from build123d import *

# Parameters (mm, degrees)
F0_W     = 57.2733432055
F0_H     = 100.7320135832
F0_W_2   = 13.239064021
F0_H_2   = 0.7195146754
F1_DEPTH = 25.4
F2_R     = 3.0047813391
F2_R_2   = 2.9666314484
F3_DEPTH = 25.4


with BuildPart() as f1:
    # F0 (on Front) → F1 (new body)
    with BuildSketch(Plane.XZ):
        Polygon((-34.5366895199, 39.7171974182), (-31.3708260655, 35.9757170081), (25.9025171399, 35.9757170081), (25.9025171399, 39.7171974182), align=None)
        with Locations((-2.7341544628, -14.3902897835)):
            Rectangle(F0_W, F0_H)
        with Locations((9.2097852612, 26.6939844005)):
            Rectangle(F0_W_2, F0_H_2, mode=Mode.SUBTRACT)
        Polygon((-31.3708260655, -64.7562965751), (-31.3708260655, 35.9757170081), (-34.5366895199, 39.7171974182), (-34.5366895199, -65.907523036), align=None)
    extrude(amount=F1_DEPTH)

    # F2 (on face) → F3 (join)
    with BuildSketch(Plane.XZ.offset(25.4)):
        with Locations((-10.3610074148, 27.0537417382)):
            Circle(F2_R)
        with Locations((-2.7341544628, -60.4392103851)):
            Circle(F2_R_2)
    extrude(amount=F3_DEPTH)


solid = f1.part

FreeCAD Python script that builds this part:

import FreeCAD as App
import Part
import Sketcher
from FreeCAD import Vector
Q = App.Units.Quantity

doc = App.newDocument("Part")
body = doc.addObject("PartDesign::Body", "Body")

# Sketch on XZ plane
sketch1 = body.newObject("Sketcher::SketchObject", "Sketch")
sketch1.AttachmentSupport = (doc.getObject("XZ_Plane"), [""])
sketch1.MapMode = "FlatFace"
sketch1.addGeometry(Part.LineSegment(Vector(25.9, 39.7, 0), Vector(-34.5, 39.7, 0)), False)
sketch1.addGeometry(Part.LineSegment(Vector(-34.5, 39.7, 0), Vector(-34.5, -65.9, 0)), False)
sketch1.addGeometry(Part.LineSegment(Vector(-34.5, -65.9, 0), Vector(-31.4, -64.8, 0)), False)
sketch1.addGeometry(Part.LineSegment(Vector(-31.4, -64.8, 0), Vector(25.9, -64.8, 0)), False)
sketch1.addGeometry(Part.LineSegment(Vector(25.9, -64.8, 0), Vector(25.9, 39.7, 0)), False)
sketch1.addGeometry(Part.LineSegment(Vector(15.8, 26.3, 0), Vector(2.6, 26.3, 0)), False)
sketch1.addGeometry(Part.LineSegment(Vector(2.6, 26.3, 0), Vector(2.6, 27.1, 0)), False)
sketch1.addGeometry(Part.LineSegment(Vector(2.6, 27.1, 0), Vector(15.8, 27.1, 0)), False)
sketch1.addGeometry(Part.LineSegment(Vector(15.8, 27.1, 0), Vector(15.8, 26.3, 0)), False)
sketch1.addConstraint(Sketcher.Constraint("Coincident", 0, 2, 1, 1))
sketch1.addConstraint(Sketcher.Constraint("Coincident", 1, 2, 2, 1))
sketch1.addConstraint(Sketcher.Constraint("Coincident", 2, 2, 3, 1))
sketch1.addConstraint(Sketcher.Constraint("Coincident", 3, 2, 4, 1))
sketch1.addConstraint(Sketcher.Constraint("Coincident", 4, 2, 0, 1))
sketch1.addConstraint(Sketcher.Constraint("Coincident", 5, 2, 6, 1))
sketch1.addConstraint(Sketcher.Constraint("Coincident", 6, 2, 7, 1))
sketch1.addConstraint(Sketcher.Constraint("Coincident", 7, 2, 8, 1))
sketch1.addConstraint(Sketcher.Constraint("Coincident", 8, 2, 5, 1))
sketch1.addConstraint(Sketcher.Constraint("Horizontal", 0))
sketch1.addConstraint(Sketcher.Constraint("Vertical", 1))
sketch1.addConstraint(Sketcher.Constraint("Horizontal", 3))
sketch1.addConstraint(Sketcher.Constraint("Vertical", 4))
sketch1.addConstraint(Sketcher.Constraint("Horizontal", 5))
sketch1.addConstraint(Sketcher.Constraint("Vertical", 6))
sketch1.addConstraint(Sketcher.Constraint("Horizontal", 7))
sketch1.addConstraint(Sketcher.Constraint("Vertical", 8))
sketch1.addConstraint(Sketcher.Constraint("DistanceY", 1, 2, 1, 1, 105.62472))
sketch1.addConstraint(Sketcher.Constraint("DistanceX", 7, 2, 4, 2, 10.0732))
sketch1.addConstraint(Sketcher.Constraint("Distance", 2, 3.368681))
sketch1.addConstraint(Sketcher.Constraint("DistanceX", 0, 2, 0, 1, 60.439207))
sketch1.addConstraint(Sketcher.Constraint("DistanceX", 3, 1, 3, 2, 57.273343))
sketch1.addConstraint(Sketcher.Constraint("DistanceX", 5, 2, 5, 1, 13.239064))
sketch1.addConstraint(Sketcher.Constraint("DistanceY", 6, 1, 6, 2, 0.719515))
sketch1.addConstraint(Sketcher.Constraint("DistanceX", 0, 2, -1, 1, 34.53669))
sketch1.addConstraint(Sketcher.Constraint("DistanceY", -1, 1, 6, 2, 27.053742))
sketch1.addConstraint(Sketcher.Constraint("DistanceY", 5, 2, 4, 2, 13.38297))
pad1 = body.newObject("PartDesign::Pad", "Pad")
pad1.Profile = sketch1
pad1.Length = Q("1 in")

# Sketch on XZ plane
sketch2 = body.newObject("Sketcher::SketchObject", "Sketch001")
sketch2.AttachmentSupport = (doc.getObject("XZ_Plane"), [""])
sketch2.MapMode = "FlatFace"
sketch2.AttachmentOffset = App.Placement(Vector(0, 0, 1 * 25.4), App.Rotation())
sketch2.addGeometry(Part.Circle(Vector(-10.4, 27.1, 0), Vector(0, 0, 1), 3), False)
sketch2.addGeometry(Part.Circle(Vector(-2.7, -60.4, 0), Vector(0, 0, 1), 3), False)
sketch2.addConstraint(Sketcher.Constraint("Diameter", 0, 6.009563))
sketch2.addConstraint(Sketcher.Constraint("Diameter", 1, 5.933263))
sketch2.addConstraint(Sketcher.Constraint("DistanceY", -1, 1, 0, 3, 27.053742))
sketch2.addConstraint(Sketcher.Constraint("DistanceY", 1, 3, -1, 1, 60.43921))
sketch2.addConstraint(Sketcher.Constraint("DistanceX", 0, 3, -1, 1, 10.361007))
sketch2.addConstraint(Sketcher.Constraint("DistanceX", 1, 3, -1, 1, 2.734154))
pad2 = body.newObject("PartDesign::Pad", "Pad001")
pad2.Profile = sketch2
pad2.Length = Q("1 in")

doc.recompute()
